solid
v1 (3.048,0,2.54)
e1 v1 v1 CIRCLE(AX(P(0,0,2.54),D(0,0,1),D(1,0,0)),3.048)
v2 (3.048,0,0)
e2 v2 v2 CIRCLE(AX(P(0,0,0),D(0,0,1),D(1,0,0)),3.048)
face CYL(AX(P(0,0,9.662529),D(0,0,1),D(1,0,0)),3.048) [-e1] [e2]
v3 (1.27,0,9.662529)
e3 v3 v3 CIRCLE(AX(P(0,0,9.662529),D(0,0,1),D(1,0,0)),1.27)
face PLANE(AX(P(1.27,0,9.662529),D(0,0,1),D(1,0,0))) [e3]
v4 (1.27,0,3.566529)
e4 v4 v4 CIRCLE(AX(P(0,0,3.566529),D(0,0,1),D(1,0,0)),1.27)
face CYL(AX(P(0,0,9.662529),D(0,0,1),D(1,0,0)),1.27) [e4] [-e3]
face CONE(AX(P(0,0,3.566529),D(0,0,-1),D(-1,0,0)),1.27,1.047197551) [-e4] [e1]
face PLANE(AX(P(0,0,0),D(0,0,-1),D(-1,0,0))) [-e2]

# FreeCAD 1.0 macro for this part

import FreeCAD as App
import Part
import Sketcher
from FreeCAD import Vector
Q = App.Units.Quantity


def add_polygon(sketch, points):
    """Adds a closed chain of lines whose ends are joined by coincident constraints."""
    first, n = sketch.GeometryCount, len(points)
    for a, b in zip(points, points[1:] + points[:1]):
        sketch.addGeometry(Part.LineSegment(App.Vector(*a, 0), App.Vector(*b, 0)), False)
    for i in range(n):
        sketch.addConstraint(Sketcher.Constraint("Coincident", first + i, 2, first + (i + 1) % n, 1))

doc = App.newDocument("Part")
params = doc.addObject("Spreadsheet::Sheet", "Params")
for row, (alias, value) in enumerate([
    ("sketch1_height", "0.1 in"),
    ("sketch1_width", "0.12 in"),
    ("sketch1_width2", "0.05 in"),
    ("sketch1_height2", "0.24 in"),
    ("revolution_angle", "360 deg"),
], start=1):
    params.set(f"A{row}", alias)
    params.set(f"B{row}", "=" + value)
    params.setAlias(f"B{row}", alias)

body = doc.addObject("PartDesign::Body", "Body")

# Sketch on XZ plane
sketch1 = body.newObject("Sketcher::SketchObject", "Sketch")
sketch1.AttachmentSupport = (doc.getObject("XZ_Plane"), [""])
sketch1.MapMode = "FlatFace"
add_polygon(sketch1, [(3.048, 0), (0, 0), (0, 9.662529), (1.27, 9.662529), (1.27, 3.566529), (3.048, 2.54)])  # lines 0-5
sketch1.addConstraint(Sketcher.Constraint("Horizontal", 0))
sketch1.addConstraint(Sketcher.Constraint("Vertical", 1))
sketch1.addConstraint(Sketcher.Constraint("Horizontal", 2))
sketch1.addConstraint(Sketcher.Constraint("Vertical", 3))
sketch1.addConstraint(Sketcher.Constraint("Vertical", 5))
sketch1.addConstraint(Sketcher.Constraint("Coincident", 0, 2, -1, 1))
sketch1.addConstraint(Sketcher.Constraint("DistanceY", 5, 2, 5, 1, Q("0.1 in")))
sketch1.addConstraint(Sketcher.Constraint("Angle", 4, Q("-30 deg")))
sketch1.addConstraint(Sketcher.Constraint("DistanceX", 0, 2, 0, 1, Q("0.12 in")))
sketch1.addConstraint(Sketcher.Constraint("DistanceX", 2, 1, 2, 2, Q("0.05 in")))
sketch1.addConstraint(Sketcher.Constraint("DistanceY", 3, 2, 3, 1, Q("0.24 in")))
sketch1.setExpression("Constraints[12]", "Params.sketch1_height")
sketch1.setExpression("Constraints[14]", "Params.sketch1_width")
sketch1.setExpression("Constraints[15]", "Params.sketch1_width2")
sketch1.setExpression("Constraints[16]", "Params.sketch1_height2")
revolution = body.newObject("PartDesign::Revolution", "Revolution")
revolution.Profile = sketch1
revolution.ReferenceAxis = (sketch1, ["V_Axis"])
revolution.setExpression("Angle", "Params.revolution_angle")

doc.recompute()
